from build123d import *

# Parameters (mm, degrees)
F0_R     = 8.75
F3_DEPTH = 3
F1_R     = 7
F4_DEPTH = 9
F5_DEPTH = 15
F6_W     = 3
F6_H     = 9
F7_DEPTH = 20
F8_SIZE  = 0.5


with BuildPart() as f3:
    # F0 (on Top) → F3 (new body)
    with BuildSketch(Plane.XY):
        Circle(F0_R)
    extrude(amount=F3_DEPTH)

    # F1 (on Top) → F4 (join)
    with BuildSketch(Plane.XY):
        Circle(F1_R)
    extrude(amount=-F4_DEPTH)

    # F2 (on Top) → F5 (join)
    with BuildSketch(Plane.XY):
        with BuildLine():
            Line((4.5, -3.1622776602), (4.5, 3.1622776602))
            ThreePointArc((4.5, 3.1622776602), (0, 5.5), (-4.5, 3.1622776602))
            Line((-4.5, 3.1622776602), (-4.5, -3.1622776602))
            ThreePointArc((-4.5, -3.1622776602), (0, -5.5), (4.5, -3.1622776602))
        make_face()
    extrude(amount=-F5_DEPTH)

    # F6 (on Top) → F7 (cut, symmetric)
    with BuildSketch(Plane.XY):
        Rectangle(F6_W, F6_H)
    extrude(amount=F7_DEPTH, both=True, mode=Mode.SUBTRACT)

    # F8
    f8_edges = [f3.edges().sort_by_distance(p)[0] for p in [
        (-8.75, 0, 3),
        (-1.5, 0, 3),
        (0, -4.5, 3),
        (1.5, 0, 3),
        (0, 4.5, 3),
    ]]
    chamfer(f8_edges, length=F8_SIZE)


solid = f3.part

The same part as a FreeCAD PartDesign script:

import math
import FreeCAD as App
import Part
import Sketcher
Q = App.Units.Quantity


def edges_at(feature, points):
    """Names of the edges that pass closest to the given points."""
    edges = feature.Shape.Edges
    near = lambda p: min(range(len(edges)), key=lambda i: edges[i].distToShape(Part.Vertex(*p))[0])
    return sorted({f"Edge{near(p) + 1}" for p in points})


def add_polygon(sketch, points):
    """Adds a closed chain of lines whose ends are joined by coincident constraints."""
    first, n = sketch.GeometryCount, len(points)
    for a, b in zip(points, points[1:] + points[:1]):
        sketch.addGeometry(Part.LineSegment(App.Vector(*a, 0), App.Vector(*b, 0)), False)
    for i in range(n):
        sketch.addConstraint(Sketcher.Constraint("Coincident", first + i, 2, first + (i + 1) % n, 1))

doc = App.newDocument("Part")
params = doc.addObject("Spreadsheet::Sheet", "Params")
for row, (alias, value) in enumerate([
    ("sketch1_diameter", "17.5 mm"),
    ("pad1_length", "3 mm"),
    ("sketch2_diameter", "14 mm"),
    ("pad2_length", "9 mm"),
    ("sketch3_radius", "5.5 mm"),
    ("pad3_length", "15 mm"),
    ("sketch4_width", "3 mm"),
    ("sketch4_height", "9 mm"),
    ("pocket1_length", "40 mm"),
    ("chamfer_size", "0.5 mm"),
], start=1):
    params.set(f"A{row}", alias)
    params.set(f"B{row}", "=" + value)
    params.setAlias(f"B{row}", alias)

body = doc.addObject("PartDesign::Body", "Body")

# Sketch on XY plane
sketch1 = body.newObject("Sketcher::SketchObject", "Sketch")
sketch1.AttachmentSupport = (doc.getObject("XY_Plane"), [""])
sketch1.MapMode = "FlatFace"
sketch1.addGeometry(Part.Circle(App.Vector(0, 0, 0), App.Vector(0, 0, 1), 9), False)
sketch1.addConstraint(Sketcher.Constraint("Coincident", 0, 3, -1, 1))
sketch1.addConstraint(Sketcher.Constraint("Diameter", 0, Q("17.5 mm")))
sketch1.setExpression("Constraints[1]", "Params.sketch1_diameter")
pad1 = body.newObject("PartDesign::Pad", "Pad")
pad1.Profile = sketch1
pad1.setExpression("Length", "Params.pad1_length")

# Sketch on XY plane
sketch2 = body.newObject("Sketcher::SketchObject", "Sketch001")
sketch2.AttachmentSupport = (doc.getObject("XY_Plane"), [""])
sketch2.MapMode = "FlatFace"
sketch2.addGeometry(Part.Circle(App.Vector(0, 0, 0), App.Vector(0, 0, 1), 7), False)
sketch2.addConstraint(Sketcher.Constraint("Coincident", 0, 3, -1, 1))
sketch2.addConstraint(Sketcher.Constraint("Diameter", 0, Q("14 mm")))
sketch2.setExpression("Constraints[1]", "Params.sketch2_diameter")
pad2 = body.newObject("PartDesign::Pad", "Pad001")
pad2.Profile = sketch2
pad2.setExpression("Length", "Params.pad2_length")
pad2.Reversed = True

# Sketch on XY plane
sketch3 = body.newObject("Sketcher::SketchObject", "Sketch002")
sketch3.AttachmentSupport = (doc.getObject("XY_Plane"), [""])
sketch3.MapMode = "FlatFace"
sketch3.addGeometry(Part.LineSegment(App.Vector(4, -3, 0), App.Vector(4, 3, 0)), False)
sketch3.addGeometry(Part.ArcOfCircle(Part.Circle(App.Vector(0, 0, 0), App.Vector(0, 0, 1), 6), math.radians(35), math.radians(145)), False)
sketch3.addGeometry(Part.LineSegment(App.Vector(-4, 3, 0), App.Vector(-4, -3, 0)), False)
sketch3.addGeometry(Part.ArcOfCircle(Part.Circle(App.Vector(0, 0, 0), App.Vector(0, 0, 1), 6), math.radians(-145), math.radians(-35)), False)
sketch3.addConstraint(Sketcher.Constraint("Coincident", 0, 2, 1, 1))
sketch3.addConstraint(Sketcher.Constraint("Coincident", 1, 2, 2, 1))
sketch3.addConstraint(Sketcher.Constraint("Coincident", 2, 2, 3, 1))
sketch3.addConstraint(Sketcher.Constraint("Coincident", 3, 2, 0, 1))
sketch3.addConstraint(Sketcher.Constraint("Vertical", 0))
sketch3.addConstraint(Sketcher.Constraint("Vertical", 2))
sketch3.addConstraint(Sketcher.Constraint("Coincident", 1, 3, -1, 1))
sketch3.addConstraint(Sketcher.Constraint("Coincident", 3, 3, -1, 1))
sketch3.addConstraint(Sketcher.Constraint("Equal", 1, 3))
sketch3.addConstraint(Sketcher.Constraint("Horizontal", 0, 2, 1, 2))
sketch3.addConstraint(Sketcher.Constraint("Radius", 1, Q("5.5 mm")))
sketch3.addConstraint(Sketcher.Constraint("DistanceX", 1, 2, 0, 2, Q("9 mm")))
sketch3.setExpression("Constraints[10]", "Params.sketch3_radius")
pad3 = body.newObject("PartDesign::Pad", "Pad002")
pad3.Profile = sketch3
pad3.setExpression("Length", "Params.pad3_length")
pad3.Reversed = True

# Sketch on XY plane
sketch4 = body.newObject("Sketcher::SketchObject", "Sketch003")
sketch4.AttachmentSupport = (doc.getObject("XY_Plane"), [""])
sketch4.MapMode = "FlatFace"
add_polygon(sketch4, [(-1.5, 4.5), (-1.5, -4.5), (1.5, -4.5), (1.5, 4.5)])  # lines 0-3
sketch4.addConstraint(Sketcher.Constraint("Vertical", 0))
sketch4.addConstraint(Sketcher.Constraint("Horizontal", 1))
sketch4.addConstraint(Sketcher.Constraint("Vertical", 2))
sketch4.addConstraint(Sketcher.Constraint("Horizontal", 3))
sketch4.addConstraint(Sketcher.Constraint("Symmetric", 0, 2, 2, 2, -1, 1))
sketch4.addConstraint(Sketcher.Constraint("DistanceX", 1, 1, 1, 2, Q("3 mm")))
sketch4.addConstraint(Sketcher.Constraint("DistanceY", 0, 2, 0, 1, Q("9 mm")))
sketch4.setExpression("Constraints[9]", "Params.sketch4_width")
sketch4.setExpression("Constraints[10]", "Params.sketch4_height")
pocket1 = body.newObject("PartDesign::Pocket", "Pocket")
pocket1.Profile = sketch4
pocket1.setExpression("Length", "Params.pocket1_length")
pocket1.Midplane = True
doc.recompute()

chamfer = body.newObject("PartDesign::Chamfer", "Chamfer")
chamfer.Base = (pocket1, edges_at(pocket1, [
    (-8.75, 0, 3),
    (-1.5, 0, 3),
    (0, -4.5, 3),
    (1.5, 0, 3),
    (0, 4.5, 3),
]))
chamfer.setExpression("Size", "Params.chamfer_size")

doc.recompute()
